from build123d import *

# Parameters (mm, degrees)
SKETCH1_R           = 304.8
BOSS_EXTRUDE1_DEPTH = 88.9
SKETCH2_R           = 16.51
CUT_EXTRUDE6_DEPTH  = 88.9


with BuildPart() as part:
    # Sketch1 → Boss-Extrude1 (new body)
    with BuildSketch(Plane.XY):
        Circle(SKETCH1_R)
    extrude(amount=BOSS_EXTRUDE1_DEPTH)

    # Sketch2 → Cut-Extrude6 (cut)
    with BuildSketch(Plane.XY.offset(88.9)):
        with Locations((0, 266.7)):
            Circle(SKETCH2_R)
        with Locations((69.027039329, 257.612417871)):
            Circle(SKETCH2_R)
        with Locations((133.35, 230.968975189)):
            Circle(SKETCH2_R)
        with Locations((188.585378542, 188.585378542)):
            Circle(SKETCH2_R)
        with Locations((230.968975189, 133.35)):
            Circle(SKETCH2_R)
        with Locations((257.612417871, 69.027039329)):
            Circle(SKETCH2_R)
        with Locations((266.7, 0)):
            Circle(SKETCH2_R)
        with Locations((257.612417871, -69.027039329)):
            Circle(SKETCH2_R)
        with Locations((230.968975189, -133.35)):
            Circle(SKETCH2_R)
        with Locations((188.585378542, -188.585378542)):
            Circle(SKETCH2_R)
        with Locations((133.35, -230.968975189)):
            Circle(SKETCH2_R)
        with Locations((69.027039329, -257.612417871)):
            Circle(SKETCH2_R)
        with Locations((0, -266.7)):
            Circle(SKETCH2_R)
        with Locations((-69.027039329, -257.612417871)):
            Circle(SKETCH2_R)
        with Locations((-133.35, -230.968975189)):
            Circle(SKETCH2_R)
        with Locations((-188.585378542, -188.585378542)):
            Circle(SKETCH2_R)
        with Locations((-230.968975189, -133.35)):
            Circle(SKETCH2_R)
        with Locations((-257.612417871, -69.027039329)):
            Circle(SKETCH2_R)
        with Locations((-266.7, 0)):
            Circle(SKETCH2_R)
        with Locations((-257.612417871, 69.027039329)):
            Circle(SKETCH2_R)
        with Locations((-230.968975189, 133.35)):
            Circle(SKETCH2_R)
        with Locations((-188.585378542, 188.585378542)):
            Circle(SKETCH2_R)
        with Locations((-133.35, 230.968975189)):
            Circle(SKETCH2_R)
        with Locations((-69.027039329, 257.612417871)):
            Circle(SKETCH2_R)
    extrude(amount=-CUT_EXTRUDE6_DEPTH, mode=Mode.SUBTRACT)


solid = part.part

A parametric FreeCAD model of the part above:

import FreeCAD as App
import Part
import Sketcher
from FreeCAD import Vector
Q = App.Units.Quantity

doc = App.newDocument("Part")
body = doc.addObject("PartDesign::Body", "Body")

# Sketch on XY plane
sketch1 = body.newObject("Sketcher::SketchObject", "Sketch")
sketch1.AttachmentSupport = (doc.getObject("XY_Plane"), [""])
sketch1.MapMode = "FlatFace"
sketch1.addGeometry(Part.Circle(Vector(0, 0, 0), Vector(0, 0, 1), 305), False)
sketch1.addConstraint([
    Sketcher.Constraint("Coincident", 0, 3, -1, 1),
    Sketcher.Constraint("Diameter", 0, Q("24 in")),
])
pad1 = body.newObject("PartDesign::Pad", "Pad")
pad1.Profile = sketch1
pad1.Length = Q("3.5 in")

# Sketch on XY plane
sketch2 = body.newObject("Sketcher::SketchObject", "Sketch001")
sketch2.AttachmentSupport = (doc.getObject("XY_Plane"), [""])
sketch2.MapMode = "FlatFace"
sketch2.AttachmentOffset = App.Placement(Vector(0, 0, 3.5 * 25.4), App.Rotation())
sketch2.addGeometry([
    Part.Circle(Vector(0, 267, 0), Vector(0, 0, 1), 17),  # 0
    Part.Circle(Vector(69, 258, 0), Vector(0, 0, 1), 17),  # 1
    Part.Circle(Vector(133, 231, 0), Vector(0, 0, 1), 17),  # 2
    Part.Circle(Vector(189, 189, 0), Vector(0, 0, 1), 17),  # 3
    Part.Circle(Vector(231, 133, 0), Vector(0, 0, 1), 17),  # 4
    Part.Circle(Vector(258, 69, 0), Vector(0, 0, 1), 17),  # 5
    Part.Circle(Vector(267, 0, 0), Vector(0, 0, 1), 17),  # 6
    Part.Circle(Vector(258, -69, 0), Vector(0, 0, 1), 17),  # 7
    Part.Circle(Vector(231, -133, 0), Vector(0, 0, 1), 17),  # 8
    Part.Circle(Vector(189, -189, 0), Vector(0, 0, 1), 17),  # 9
    Part.Circle(Vector(133, -231, 0), Vector(0, 0, 1), 17),  # 10
    Part.Circle(Vector(69, -258, 0), Vector(0, 0, 1), 17),  # 11
    Part.Circle(Vector(0, -267, 0), Vector(0, 0, 1), 17),  # 12
    Part.Circle(Vector(-69, -258, 0), Vector(0, 0, 1), 17),  # 13
    Part.Circle(Vector(-133, -231, 0), Vector(0, 0, 1), 17),  # 14
    Part.Circle(Vector(-189, -189, 0), Vector(0, 0, 1), 17),  # 15
    Part.Circle(Vector(-231, -133, 0), Vector(0, 0, 1), 17),  # 16
    Part.Circle(Vector(-258, -69, 0), Vector(0, 0, 1), 17),  # 17
    Part.Circle(Vector(-267, 0, 0), Vector(0, 0, 1), 17),  # 18
    Part.Circle(Vector(-258, 69, 0), Vector(0, 0, 1), 17),  # 19
    Part.Circle(Vector(-231, 133, 0), Vector(0, 0, 1), 17),  # 20
    Part.Circle(Vector(-189, 189, 0), Vector(0, 0, 1), 17),  # 21
    Part.Circle(Vector(-133, 231, 0), Vector(0, 0, 1), 17),  # 22
    Part.Circle(Vector(-69, 258, 0), Vector(0, 0, 1), 17),  # 23
], False)
sketch2.addConstraint([
    Sketcher.Constraint("Equal", 0, 1),
    Sketcher.Constraint("Equal", 1, 2),
    Sketcher.Constraint("Equal", 2, 3),
    Sketcher.Constraint("Equal", 3, 4),
    Sketcher.Constraint("Equal", 4, 5),
    Sketcher.Constraint("Equal", 5, 6),
    Sketcher.Constraint("Equal", 6, 7),
    Sketcher.Constraint("Equal", 7, 8),
    Sketcher.Constraint("Equal", 8, 9),
    Sketcher.Constraint("Equal", 9, 10),
    Sketcher.Constraint("Equal", 10, 11),
    Sketcher.Constraint("Equal", 11, 12),
    Sketcher.Constraint("Equal", 12, 13),
    Sketcher.Constraint("Equal", 13, 14),
    Sketcher.Constraint("Equal", 14, 15),
    Sketcher.Constraint("Equal", 15, 16),
    Sketcher.Constraint("Equal", 16, 17),
    Sketcher.Constraint("Equal", 17, 18),
    Sketcher.Constraint("Equal", 18, 19),
    Sketcher.Constraint("Equal", 19, 20),
    Sketcher.Constraint("Equal", 20, 21),
    Sketcher.Constraint("Equal", 21, 22),
    Sketcher.Constraint("Equal", 22, 23),
    Sketcher.Constraint("Symmetric", 0, 3, 12, 3, -1, 1),
    Sketcher.Constraint("Symmetric", 1, 3, 13, 3, -1, 1),
    Sketcher.Constraint("Symmetric", 2, 3, 14, 3, -1, 1),
    Sketcher.Constraint("Symmetric", 3, 3, 15, 3, -1, 1),
    Sketcher.Constraint("Symmetric", 4, 3, 16, 3, -1, 1),
    Sketcher.Constraint("Symmetric", 5, 3, 17, 3, -1, 1),
    Sketcher.Constraint("Symmetric", 6, 3, 18, 3, -1, 1),
    Sketcher.Constraint("Symmetric", 7, 3, 19, 3, -1, 1),
    Sketcher.Constraint("Symmetric", 8, 3, 20, 3, -1, 1),
    Sketcher.Constraint("Symmetric", 9, 3, 21, 3, -1, 1),
    Sketcher.Constraint("Symmetric", 10, 3, 22, 3, -1, 1),
    Sketcher.Constraint("Symmetric", 11, 3, 23, 3, -1, 1),
    Sketcher.Constraint("Symmetric", 11, 3, 13, 3, -2),
    Sketcher.Constraint("Symmetric", 10, 3, 14, 3, -2),
    Sketcher.Constraint("Symmetric", 9, 3, 15, 3, -2),
    Sketcher.Constraint("Symmetric", 8, 3, 16, 3, -2),
    Sketcher.Constraint("Symmetric", 7, 3, 17, 3, -2),
    Sketcher.Constraint("PointOnObject", 0, 3, -2),
    Sketcher.Constraint("PointOnObject", 6, 3, -1),
    Sketcher.Constraint("Diameter", 0, Q("1.3 in")),
    Sketcher.Constraint("DistanceY", -1, 1, 0, 3, Q("10.5 in")),
    Sketcher.Constraint("DistanceX", -1, 1, 6, 3, Q("10.5 in")),
    Sketcher.Constraint("DistanceY", 8, 3, 4, 3, Q("10.5 in")),
    Sketcher.Constraint("DistanceX", 14, 3, 10, 3, Q("10.5 in")),
    Sketcher.Constraint("DistanceX", -1, 1, 1, 3, Q("2.7176 in")),
    Sketcher.Constraint("DistanceY", -1, 1, 5, 3, Q("2.7176 in")),
    Sketcher.Constraint("DistanceY", 3, 3, 1, 3, Q("2.7176 in")),
    Sketcher.Constraint("DistanceX", 3, 3, 5, 3, Q("2.7176 in")),
    Sketcher.Constraint("DistanceX", -1, 1, 3, 3, 188.585379),
    Sketcher.Constraint("DistanceY", -1, 1, 3, 3, 188.585379),
    Sketcher.Constraint("DistanceY", -1, 1, 2, 3, 230.968975),
    Sketcher.Constraint("DistanceX", -1, 1, 4, 3, 230.968975),
])
pocket1 = body.newObject("PartDesign::Pocket", "Pocket")
pocket1.Profile = sketch2
pocket1.Length = Q("3.5 in")

doc.recompute()
